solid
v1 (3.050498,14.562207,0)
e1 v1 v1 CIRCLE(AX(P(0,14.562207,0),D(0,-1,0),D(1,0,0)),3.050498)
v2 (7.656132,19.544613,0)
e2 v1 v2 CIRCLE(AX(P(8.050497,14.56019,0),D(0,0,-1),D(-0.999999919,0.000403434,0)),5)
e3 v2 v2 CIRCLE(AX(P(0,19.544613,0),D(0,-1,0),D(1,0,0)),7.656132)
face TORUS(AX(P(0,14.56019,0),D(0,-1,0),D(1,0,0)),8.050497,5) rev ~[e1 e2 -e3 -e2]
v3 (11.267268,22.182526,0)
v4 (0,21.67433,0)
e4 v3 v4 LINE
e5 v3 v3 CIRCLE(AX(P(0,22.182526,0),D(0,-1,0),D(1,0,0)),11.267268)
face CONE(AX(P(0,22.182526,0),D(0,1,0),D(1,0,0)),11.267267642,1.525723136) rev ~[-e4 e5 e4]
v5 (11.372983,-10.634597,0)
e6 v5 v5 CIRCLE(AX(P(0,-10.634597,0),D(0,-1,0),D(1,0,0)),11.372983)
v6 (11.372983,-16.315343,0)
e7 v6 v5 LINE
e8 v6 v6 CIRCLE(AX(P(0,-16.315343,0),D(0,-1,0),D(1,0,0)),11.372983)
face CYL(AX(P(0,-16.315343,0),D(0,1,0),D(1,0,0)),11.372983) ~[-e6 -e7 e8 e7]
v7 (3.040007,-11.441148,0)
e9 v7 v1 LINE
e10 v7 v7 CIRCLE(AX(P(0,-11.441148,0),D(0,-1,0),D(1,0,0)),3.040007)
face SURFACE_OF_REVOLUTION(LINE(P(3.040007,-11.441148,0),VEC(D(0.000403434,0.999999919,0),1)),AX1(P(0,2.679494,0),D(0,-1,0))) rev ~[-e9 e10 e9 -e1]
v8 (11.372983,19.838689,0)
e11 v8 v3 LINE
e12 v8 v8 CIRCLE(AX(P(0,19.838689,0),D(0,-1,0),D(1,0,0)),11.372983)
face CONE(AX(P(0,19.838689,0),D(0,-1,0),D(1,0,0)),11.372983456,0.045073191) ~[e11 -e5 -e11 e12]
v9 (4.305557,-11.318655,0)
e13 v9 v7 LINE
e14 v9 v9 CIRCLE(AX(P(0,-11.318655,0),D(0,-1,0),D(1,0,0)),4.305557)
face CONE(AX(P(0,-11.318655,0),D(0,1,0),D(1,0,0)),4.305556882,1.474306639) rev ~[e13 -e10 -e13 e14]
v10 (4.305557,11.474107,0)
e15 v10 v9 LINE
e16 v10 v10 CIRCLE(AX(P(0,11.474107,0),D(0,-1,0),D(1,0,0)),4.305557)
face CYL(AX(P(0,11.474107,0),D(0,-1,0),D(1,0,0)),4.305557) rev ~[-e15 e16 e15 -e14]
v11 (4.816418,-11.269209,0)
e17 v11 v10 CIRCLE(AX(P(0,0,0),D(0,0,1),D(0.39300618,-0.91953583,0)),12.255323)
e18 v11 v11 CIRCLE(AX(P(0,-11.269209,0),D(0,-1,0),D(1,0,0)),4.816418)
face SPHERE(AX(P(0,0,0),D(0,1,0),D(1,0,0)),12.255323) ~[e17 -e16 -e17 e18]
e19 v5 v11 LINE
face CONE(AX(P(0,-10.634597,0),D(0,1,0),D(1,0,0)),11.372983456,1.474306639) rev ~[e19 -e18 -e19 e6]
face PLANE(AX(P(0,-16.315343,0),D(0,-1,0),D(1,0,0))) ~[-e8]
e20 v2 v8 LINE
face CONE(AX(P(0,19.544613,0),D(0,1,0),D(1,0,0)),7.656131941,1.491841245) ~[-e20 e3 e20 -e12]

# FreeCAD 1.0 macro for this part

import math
import FreeCAD as App
import Part
import Sketcher
Q = App.Units.Quantity

doc = App.newDocument("Part")
body = doc.addObject("PartDesign::Body", "Body")

sketch1 = body.newObject("Sketcher::SketchObject", "Sketch")
sketch1.AttachmentSupport = (doc.getObject("XY_Plane"), [""])
sketch1.MapMode = "FlatFace"
sketch1.addGeometry([
    Part.ArcOfCircle(Part.Circle(App.Vector(0, 0, 0), App.Vector(0, 0, 1), 12.255323), math.radians(-66.858318), math.radians(69.431843)),
    Part.LineSegment(App.Vector(4.305557, 11.474107, 0), App.Vector(4.305557, -11.318655, 0)),
    Part.LineSegment(App.Vector(4.305557, -11.318655, 0), App.Vector(3.040007, -11.441148, 0)),
    Part.LineSegment(App.Vector(3.040007, -11.441148, 0), App.Vector(3.050498, 14.562207, 0)),
    Part.ArcOfCircle(Part.Circle(App.Vector(8.050497, 14.56019, 0), App.Vector(0, 0, 1), 5), math.radians(94.523793), math.radians(179.976885)),
    Part.LineSegment(App.Vector(7.656132, 19.544613, 0), App.Vector(11.372983, 19.838689, 0)),
    Part.LineSegment(App.Vector(11.372983, 19.838689, 0), App.Vector(11.267268, 22.182526, 0)),
    Part.LineSegment(App.Vector(11.267268, 22.182526, 0), App.Vector(0, 21.67433, 0)),
    Part.LineSegment(App.Vector(0, 21.67433, 0), App.Vector(0, -16.315343, 0)),
    Part.LineSegment(App.Vector(0, -16.315343, 0), App.Vector(11.372983, -16.315343, 0)),
    Part.LineSegment(App.Vector(11.372983, -16.315343, 0), App.Vector(11.372983, -10.634597, 0)),
    Part.LineSegment(App.Vector(11.372983, -10.634597, 0), App.Vector(4.816418, -11.269209, 0)),
], False)
sketch1.addConstraint([
    Sketcher.Constraint("Coincident", 0, 2, 1, 1),
    Sketcher.Constraint("Coincident", 1, 2, 2, 1),
    Sketcher.Constraint("Coincident", 2, 2, 3, 1),
    Sketcher.Constraint("Tangent", 3, 2, 4, 2),
    Sketcher.Constraint("Tangent", 4, 1, 5, 1),
    Sketcher.Constraint("Coincident", 5, 2, 6, 1),
    Sketcher.Constraint("Coincident", 6, 2, 7, 1),
    Sketcher.Constraint("Coincident", 7, 2, 8, 1),
    Sketcher.Constraint("Coincident", 8, 2, 9, 1),
    Sketcher.Constraint("Coincident", 9, 2, 10, 1),
    Sketcher.Constraint("Coincident", 10, 2, 11, 1),
    Sketcher.Constraint("Coincident", 11, 2, 0, 1),
    Sketcher.Constraint("Vertical", 1),
    Sketcher.Constraint("Vertical", 8),
    Sketcher.Constraint("Horizontal", 9),
    Sketcher.Constraint("Vertical", 10),
    Sketcher.Constraint("Coincident", 0, 3, -1, 1),
    Sketcher.Constraint("PointOnObject", 7, 2, -2),
    Sketcher.Constraint("Perpendicular", 6, 7),
    Sketcher.Constraint("Parallel", 2, 11),
    Sketcher.Constraint("Vertical", 5, 2, 9, 2),
    Sketcher.Constraint("Radius", 4, Q("5 mm")),
    Sketcher.Constraint("Radius", 0, Q("12.255323 mm")),
    Sketcher.Constraint("DistanceY", 1, 2, 1, 1, Q("22.792762 mm")),
    Sketcher.Constraint("DistanceY", 0, 2, 3, 2, Q("3.0881 mm")),
    Sketcher.Constraint("DistanceY", 4, 3, 5, 2, Q("5.278499 mm")),
    Sketcher.Constraint("Distance", 6, Q("2.34622 mm")),
    Sketcher.Constraint("DistanceX", 9, 1, 9, 2, Q("11.372983 mm")),
    Sketcher.Constraint("DistanceY", 8, 2, 8, 1, Q("37.989673 mm")),
    Sketcher.Constraint("DistanceY", 10, 1, 10, 2, Q("5.680746 mm")),
    Sketcher.Constraint("DistanceY", -1, 1, 4, 3, Q("14.56019 mm")),
    Sketcher.Constraint("DistanceX", -1, 1, 4, 1, Q("7.656132 mm")),
    Sketcher.Constraint("DistanceY", -1, 1, 7, 2, Q("21.67433 mm")),
    Sketcher.Constraint("DistanceY", 11, 2, -1, 1, Q("11.269209 mm")),
    Sketcher.Constraint("DistanceX", 0, 2, 4, 3, Q("3.74494 mm")),
])
revolution = body.newObject("PartDesign::Revolution", "Revolution")
revolution.Profile = sketch1
revolution.ReferenceAxis = (sketch1, ["V_Axis"])
revolution.Angle = 360

doc.recompute()
